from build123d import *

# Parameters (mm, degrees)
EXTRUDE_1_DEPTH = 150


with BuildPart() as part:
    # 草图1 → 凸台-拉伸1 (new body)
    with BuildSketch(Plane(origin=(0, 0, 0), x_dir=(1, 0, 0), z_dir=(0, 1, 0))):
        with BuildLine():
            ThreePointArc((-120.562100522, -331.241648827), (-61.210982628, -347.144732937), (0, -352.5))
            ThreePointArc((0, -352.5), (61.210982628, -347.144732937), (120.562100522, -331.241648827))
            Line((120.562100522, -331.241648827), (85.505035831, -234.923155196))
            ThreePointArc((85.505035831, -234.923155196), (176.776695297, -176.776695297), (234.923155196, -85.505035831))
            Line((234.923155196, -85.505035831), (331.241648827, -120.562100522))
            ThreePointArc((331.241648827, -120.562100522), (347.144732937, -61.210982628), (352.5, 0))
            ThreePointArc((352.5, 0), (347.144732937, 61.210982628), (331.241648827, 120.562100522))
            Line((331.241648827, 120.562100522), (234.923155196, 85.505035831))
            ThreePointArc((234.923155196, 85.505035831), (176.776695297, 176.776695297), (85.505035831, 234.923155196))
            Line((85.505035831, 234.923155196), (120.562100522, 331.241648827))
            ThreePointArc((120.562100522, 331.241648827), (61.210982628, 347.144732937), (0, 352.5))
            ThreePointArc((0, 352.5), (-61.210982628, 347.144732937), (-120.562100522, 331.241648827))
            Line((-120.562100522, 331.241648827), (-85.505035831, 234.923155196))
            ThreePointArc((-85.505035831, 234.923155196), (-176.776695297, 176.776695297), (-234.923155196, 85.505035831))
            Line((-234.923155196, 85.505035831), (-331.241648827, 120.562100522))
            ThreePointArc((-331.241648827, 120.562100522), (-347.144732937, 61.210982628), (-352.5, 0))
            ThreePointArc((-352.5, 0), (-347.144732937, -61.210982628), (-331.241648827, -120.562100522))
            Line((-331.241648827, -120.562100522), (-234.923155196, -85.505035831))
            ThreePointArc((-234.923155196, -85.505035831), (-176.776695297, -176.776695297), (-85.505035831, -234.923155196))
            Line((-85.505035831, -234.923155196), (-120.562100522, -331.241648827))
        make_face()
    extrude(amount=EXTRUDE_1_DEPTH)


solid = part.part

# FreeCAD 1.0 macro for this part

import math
import FreeCAD as App
import Part
import Sketcher

V = App.Vector
Q = App.Units.Quantity

doc = App.newDocument("Part")
body = doc.addObject("PartDesign::Body", "Body")

sketch1 = body.newObject("Sketcher::SketchObject", "Sketch")
sketch1.AttachmentSupport = (doc.getObject("XZ_Plane"), [""])
sketch1.MapMode = "FlatFace"
sketch1.addGeometry(Part.ArcOfCircle(Part.Circle(V(0, 0, 0), V(0, 0, 1), 352), math.radians(90), math.radians(110)), False)
sketch1.addGeometry(Part.ArcOfCircle(Part.Circle(V(0, 0, 0), V(0, 0, 1), 352), math.radians(70), math.radians(90)), False)
sketch1.addGeometry(Part.LineSegment(V(121, 331, 0), V(86, 235, 0)), False)
sketch1.addGeometry(Part.ArcOfCircle(Part.Circle(V(0, 0, 0), V(0, 0, 1), 250), math.radians(20), math.radians(70)), False)
sketch1.addGeometry(Part.LineSegment(V(235, 86, 0), V(331, 121, 0)), False)
sketch1.addGeometry(Part.ArcOfCircle(Part.Circle(V(0, 0, 0), V(0, 0, 1), 352), math.radians(0), math.radians(20)), False)
sketch1.addGeometry(Part.ArcOfCircle(Part.Circle(V(0, 0, 0), V(0, 0, 1), 352), math.radians(-20), math.radians(0)), False)
sketch1.addGeometry(Part.LineSegment(V(331, -121, 0), V(235, -86, 0)), False)
sketch1.addGeometry(Part.ArcOfCircle(Part.Circle(V(0, 0, 0), V(0, 0, 1), 250), math.radians(-70), math.radians(-20)), False)
sketch1.addGeometry(Part.LineSegment(V(86, -235, 0), V(121, -331, 0)), False)
sketch1.addGeometry(Part.ArcOfCircle(Part.Circle(V(0, 0, 0), V(0, 0, 1), 352), math.radians(-90), math.radians(-70)), False)
sketch1.addGeometry(Part.ArcOfCircle(Part.Circle(V(0, 0, 0), V(0, 0, 1), 352), math.radians(-110), math.radians(-90)), False)
sketch1.addGeometry(Part.LineSegment(V(-121, -331, 0), V(-86, -235, 0)), False)
sketch1.addGeometry(Part.ArcOfCircle(Part.Circle(V(0, 0, 0), V(0, 0, 1), 250), math.radians(-160), math.radians(-110)), False)
sketch1.addGeometry(Part.LineSegment(V(-235, -86, 0), V(-331, -121, 0)), False)
sketch1.addGeometry(Part.ArcOfCircle(Part.Circle(V(0, 0, 0), V(0, 0, 1), 352), math.radians(180), math.radians(200)), False)
sketch1.addGeometry(Part.ArcOfCircle(Part.Circle(V(0, 0, 0), V(0, 0, 1), 352), math.radians(160), math.radians(180)), False)
sketch1.addGeometry(Part.LineSegment(V(-331, 121, 0), V(-235, 86, 0)), False)
sketch1.addGeometry(Part.ArcOfCircle(Part.Circle(V(0, 0, 0), V(0, 0, 1), 250), math.radians(110), math.radians(160)), False)
sketch1.addGeometry(Part.LineSegment(V(-86, 235, 0), V(-121, 331, 0)), False)
sketch1.addConstraint(Sketcher.Constraint("Tangent", 0, 1, 1, 2))
sketch1.addConstraint(Sketcher.Constraint("Coincident", 1, 1, 2, 1))
sketch1.addConstraint(Sketcher.Constraint("Coincident", 2, 2, 3, 2))
sketch1.addConstraint(Sketcher.Constraint("Coincident", 3, 1, 4, 1))
sketch1.addConstraint(Sketcher.Constraint("Coincident", 4, 2, 5, 2))
sketch1.addConstraint(Sketcher.Constraint("Tangent", 5, 1, 6, 2))
sketch1.addConstraint(Sketcher.Constraint("Coincident", 6, 1, 7, 1))
sketch1.addConstraint(Sketcher.Constraint("Coincident", 7, 2, 8, 2))
sketch1.addConstraint(Sketcher.Constraint("Coincident", 8, 1, 9, 1))
sketch1.addConstraint(Sketcher.Constraint("Coincident", 9, 2, 10, 2))
sketch1.addConstraint(Sketcher.Constraint("Tangent", 10, 1, 11, 2))
sketch1.addConstraint(Sketcher.Constraint("Coincident", 11, 1, 12, 1))
sketch1.addConstraint(Sketcher.Constraint("Coincident", 12, 2, 13, 2))
sketch1.addConstraint(Sketcher.Constraint("Coincident", 13, 1, 14, 1))
sketch1.addConstraint(Sketcher.Constraint("Coincident", 14, 2, 15, 2))
sketch1.addConstraint(Sketcher.Constraint("Tangent", 15, 1, 16, 2))
sketch1.addConstraint(Sketcher.Constraint("Coincident", 16, 1, 17, 1))
sketch1.addConstraint(Sketcher.Constraint("Coincident", 17, 2, 18, 2))
sketch1.addConstraint(Sketcher.Constraint("Coincident", 18, 1, 19, 1))
sketch1.addConstraint(Sketcher.Constraint("Coincident", 19, 2, 0, 2))
sketch1.addConstraint(Sketcher.Constraint("Coincident", 0, 3, -1, 1))
sketch1.addConstraint(Sketcher.Constraint("Coincident", 3, 3, -1, 1))
sketch1.addConstraint(Sketcher.Constraint("Coincident", 5, 3, -1, 1))
sketch1.addConstraint(Sketcher.Constraint("Coincident", 8, 3, -1, 1))
sketch1.addConstraint(Sketcher.Constraint("Coincident", 10, 3, -1, 1))
sketch1.addConstraint(Sketcher.Constraint("Coincident", 13, 3, -1, 1))
sketch1.addConstraint(Sketcher.Constraint("Coincident", 15, 3, -1, 1))
sketch1.addConstraint(Sketcher.Constraint("Coincident", 18, 3, -1, 1))
sketch1.addConstraint(Sketcher.Constraint("Equal", 0, 1))
sketch1.addConstraint(Sketcher.Constraint("Equal", 1, 5))
sketch1.addConstraint(Sketcher.Constraint("Equal", 5, 6))
sketch1.addConstraint(Sketcher.Constraint("Equal", 3, 8))
sketch1.addConstraint(Sketcher.Constraint("Equal", 6, 10))
sketch1.addConstraint(Sketcher.Constraint("Equal", 10, 11))
sketch1.addConstraint(Sketcher.Constraint("Equal", 8, 13))
sketch1.addConstraint(Sketcher.Constraint("Equal", 11, 15))
sketch1.addConstraint(Sketcher.Constraint("Equal", 15, 16))
sketch1.addConstraint(Sketcher.Constraint("Equal", 13, 18))
sketch1.addConstraint(Sketcher.Constraint("PointOnObject", 0, 1, -2))
sketch1.addConstraint(Sketcher.Constraint("PointOnObject", 5, 1, -1))
sketch1.addConstraint(Sketcher.Constraint("PointOnObject", 10, 1, -2))
sketch1.addConstraint(Sketcher.Constraint("PointOnObject", 15, 1, -1))
sketch1.addConstraint(Sketcher.Constraint("Perpendicular", 2, 7))
sketch1.addConstraint(Sketcher.Constraint("Perpendicular", 4, 9))
sketch1.addConstraint(Sketcher.Constraint("Perpendicular", 7, 12))
sketch1.addConstraint(Sketcher.Constraint("Perpendicular", 9, 14))
sketch1.addConstraint(Sketcher.Constraint("Perpendicular", 12, 17))
sketch1.addConstraint(Sketcher.Constraint("Perpendicular", 14, 19))
sketch1.addConstraint(Sketcher.Constraint("Horizontal", 9, 2, 11, 1))
sketch1.addConstraint(Sketcher.Constraint("Horizontal", 8, 1, 12, 2))
sketch1.addConstraint(Sketcher.Constraint("Horizontal", 7, 2, 13, 1))
sketch1.addConstraint(Sketcher.Constraint("Horizontal", 4, 2, 16, 1))
sketch1.addConstraint(Sketcher.Constraint("Horizontal", 2, 2, 18, 1))
sketch1.addConstraint(Sketcher.Constraint("Vertical", 4, 2, 6, 1))
sketch1.addConstraint(Sketcher.Constraint("Vertical", 2, 2, 8, 1))
sketch1.addConstraint(Sketcher.Constraint("Radius", 3, Q("250 mm")))
sketch1.addConstraint(Sketcher.Constraint("Radius", 0, Q("352.5 mm")))
sketch1.addConstraint(Sketcher.Constraint("Angle", 2, Q("-110 deg")))
sketch1.addConstraint(Sketcher.Constraint("DistanceY", -1, 1, 4, 2, Q("120.562101 mm")))
sketch1.addConstraint(Sketcher.Constraint("DistanceX", -1, 1, 9, 2, Q("120.562101 mm")))
pad1 = body.newObject("PartDesign::Pad", "Pad")
pad1.Profile = sketch1
pad1.Length = 150
pad1.Reversed = True

doc.recompute()
